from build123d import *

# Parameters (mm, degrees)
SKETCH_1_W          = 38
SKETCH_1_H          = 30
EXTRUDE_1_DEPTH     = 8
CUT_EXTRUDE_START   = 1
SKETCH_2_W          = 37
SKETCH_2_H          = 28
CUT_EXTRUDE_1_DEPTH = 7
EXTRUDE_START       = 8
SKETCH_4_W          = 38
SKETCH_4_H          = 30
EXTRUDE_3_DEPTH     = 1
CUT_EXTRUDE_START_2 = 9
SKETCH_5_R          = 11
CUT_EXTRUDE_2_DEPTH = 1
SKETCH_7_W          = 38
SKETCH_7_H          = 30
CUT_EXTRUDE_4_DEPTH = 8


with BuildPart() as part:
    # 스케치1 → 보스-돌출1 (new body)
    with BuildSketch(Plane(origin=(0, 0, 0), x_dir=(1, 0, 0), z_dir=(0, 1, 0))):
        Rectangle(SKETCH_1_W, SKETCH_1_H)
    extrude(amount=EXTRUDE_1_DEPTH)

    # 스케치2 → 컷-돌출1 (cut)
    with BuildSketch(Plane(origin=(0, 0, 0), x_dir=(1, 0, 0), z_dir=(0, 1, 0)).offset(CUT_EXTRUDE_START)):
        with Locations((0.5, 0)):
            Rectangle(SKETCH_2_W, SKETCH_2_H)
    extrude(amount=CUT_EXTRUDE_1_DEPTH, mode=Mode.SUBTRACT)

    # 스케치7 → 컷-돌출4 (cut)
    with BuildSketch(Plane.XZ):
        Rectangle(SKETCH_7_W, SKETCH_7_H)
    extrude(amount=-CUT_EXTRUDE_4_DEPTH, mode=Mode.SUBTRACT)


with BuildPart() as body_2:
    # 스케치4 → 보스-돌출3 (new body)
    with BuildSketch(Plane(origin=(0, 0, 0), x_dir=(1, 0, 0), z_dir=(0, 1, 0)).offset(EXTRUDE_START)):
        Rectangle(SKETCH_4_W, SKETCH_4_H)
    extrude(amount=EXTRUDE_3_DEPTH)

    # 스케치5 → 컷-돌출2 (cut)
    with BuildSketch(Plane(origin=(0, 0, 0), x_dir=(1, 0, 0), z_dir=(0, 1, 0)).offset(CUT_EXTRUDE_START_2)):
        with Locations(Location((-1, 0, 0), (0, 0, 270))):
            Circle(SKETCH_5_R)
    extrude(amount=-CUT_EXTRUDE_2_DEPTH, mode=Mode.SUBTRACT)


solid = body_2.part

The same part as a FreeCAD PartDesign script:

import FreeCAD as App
import Part
import Sketcher

V = App.Vector
Q = App.Units.Quantity

doc = App.newDocument("Part")
body = doc.addObject("PartDesign::Body", "Body")

sketch1 = body.newObject("Sketcher::SketchObject", "Sketch")
sketch1.AttachmentSupport = (doc.getObject("XZ_Plane"), [""])
sketch1.MapMode = "FlatFace"
sketch1.addGeometry([
    Part.LineSegment(V(-19, -15, 0), V(-19, 15, 0)),
    Part.LineSegment(V(-19, 15, 0), V(19, 15, 0)),
    Part.LineSegment(V(19, 15, 0), V(19, -15, 0)),
    Part.LineSegment(V(19, -15, 0), V(-19, -15, 0)),
], False)
sketch1.addConstraint([
    Sketcher.Constraint("Coincident", 0, 2, 1, 1),
    Sketcher.Constraint("Coincident", 1, 2, 2, 1),
    Sketcher.Constraint("Coincident", 2, 2, 3, 1),
    Sketcher.Constraint("Coincident", 3, 2, 0, 1),
    Sketcher.Constraint("Vertical", 0),
    Sketcher.Constraint("Horizontal", 1),
    Sketcher.Constraint("Vertical", 2),
    Sketcher.Constraint("Horizontal", 3),
    Sketcher.Constraint("Symmetric", 0, 2, 2, 2, -1, 1),
    Sketcher.Constraint("DistanceX", 1, 1, 1, 2, Q("38 mm")),
    Sketcher.Constraint("DistanceY", 0, 1, 0, 2, Q("30 mm")),
])
pad1 = body.newObject("PartDesign::Pad", "Pad")
pad1.Profile = sketch1
pad1.Length = 8
pad1.Reversed = True

sketch2 = body.newObject("Sketcher::SketchObject", "Sketch001")
sketch2.AttachmentSupport = (doc.getObject("XZ_Plane"), [""])
sketch2.MapMode = "FlatFace"
sketch2.AttachmentOffset = App.Placement(V(0, 0, -1), App.Rotation())
sketch2.addGeometry([
    Part.LineSegment(V(-18, -14, 0), V(-18, 14, 0)),
    Part.LineSegment(V(-18, 14, 0), V(19, 14, 0)),
    Part.LineSegment(V(19, 14, 0), V(19, -14, 0)),
    Part.LineSegment(V(19, -14, 0), V(-18, -14, 0)),
], False)
sketch2.addConstraint([
    Sketcher.Constraint("Coincident", 0, 2, 1, 1),
    Sketcher.Constraint("Coincident", 1, 2, 2, 1),
    Sketcher.Constraint("Coincident", 2, 2, 3, 1),
    Sketcher.Constraint("Coincident", 3, 2, 0, 1),
    Sketcher.Constraint("Vertical", 0),
    Sketcher.Constraint("Horizontal", 1),
    Sketcher.Constraint("Vertical", 2),
    Sketcher.Constraint("Horizontal", 3),
    Sketcher.Constraint("DistanceX", 1, 1, 1, 2, Q("37 mm")),
    Sketcher.Constraint("DistanceY", 0, 1, 0, 2, Q("28 mm")),
    Sketcher.Constraint("DistanceX", 0, 2, -1, 1, Q("18 mm")),
    Sketcher.Constraint("DistanceY", -1, 1, 0, 2, Q("14 mm")),
])
pocket1 = body.newObject("PartDesign::Pocket", "Pocket")
pocket1.Profile = sketch2
pocket1.Length = 7

sketch3 = body.newObject("Sketcher::SketchObject", "Sketch002")
sketch3.AttachmentSupport = (doc.getObject("XZ_Plane"), [""])
sketch3.MapMode = "FlatFace"
sketch3.addGeometry([
    Part.LineSegment(V(-19, 15, 0), V(-19, -15, 0)),
    Part.LineSegment(V(-19, -15, 0), V(19, -15, 0)),
    Part.LineSegment(V(19, -15, 0), V(19, 15, 0)),
    Part.LineSegment(V(19, 15, 0), V(-19, 15, 0)),
], False)
sketch3.addConstraint([
    Sketcher.Constraint("Coincident", 0, 2, 1, 1),
    Sketcher.Constraint("Coincident", 1, 2, 2, 1),
    Sketcher.Constraint("Coincident", 2, 2, 3, 1),
    Sketcher.Constraint("Coincident", 3, 2, 0, 1),
    Sketcher.Constraint("Vertical", 0),
    Sketcher.Constraint("Horizontal", 1),
    Sketcher.Constraint("Vertical", 2),
    Sketcher.Constraint("Horizontal", 3),
    Sketcher.Constraint("Symmetric", 0, 2, 2, 2, -1, 1),
    Sketcher.Constraint("DistanceX", 1, 1, 1, 2, Q("38 mm")),
    Sketcher.Constraint("DistanceY", 0, 2, 0, 1, Q("30 mm")),
])
pocket2 = body.newObject("PartDesign::Pocket", "Pocket001")
pocket2.Profile = sketch3
pocket2.Length = 8
body2 = doc.addObject("PartDesign::Body", "Body001")

sketch4 = body2.newObject("Sketcher::SketchObject", "Sketch003")
sketch4.AttachmentSupport = (doc.getObject("XZ_Plane001"), [""])
sketch4.MapMode = "FlatFace"
sketch4.AttachmentOffset = App.Placement(V(0, 0, -8), App.Rotation())
sketch4.addGeometry([
    Part.LineSegment(V(-19, -15, 0), V(-19, 15, 0)),
    Part.LineSegment(V(-19, 15, 0), V(19, 15, 0)),
    Part.LineSegment(V(19, 15, 0), V(19, -15, 0)),
    Part.LineSegment(V(19, -15, 0), V(-19, -15, 0)),
], False)
sketch4.addConstraint([
    Sketcher.Constraint("Coincident", 0, 2, 1, 1),
    Sketcher.Constraint("Coincident", 1, 2, 2, 1),
    Sketcher.Constraint("Coincident", 2, 2, 3, 1),
    Sketcher.Constraint("Coincident", 3, 2, 0, 1),
    Sketcher.Constraint("Vertical", 0),
    Sketcher.Constraint("Horizontal", 1),
    Sketcher.Constraint("Vertical", 2),
    Sketcher.Constraint("Horizontal", 3),
    Sketcher.Constraint("Symmetric", 0, 2, 2, 2, -1, 1),
    Sketcher.Constraint("DistanceX", 1, 1, 1, 2, Q("38 mm")),
    Sketcher.Constraint("DistanceY", 0, 1, 0, 2, Q("30 mm")),
])
pad2 = body2.newObject("PartDesign::Pad", "Pad001")
pad2.Profile = sketch4
pad2.Length = 1
pad2.Reversed = True

sketch5 = body2.newObject("Sketcher::SketchObject", "Sketch004")
sketch5.AttachmentSupport = (doc.getObject("XZ_Plane001"), [""])
sketch5.MapMode = "FlatFace"
sketch5.AttachmentOffset = App.Placement(V(0, 0, -9), App.Rotation())
sketch5.addGeometry(Part.Circle(V(-1, 0, 0), V(0, 0, 1), 11), False)
sketch5.addConstraint([
    Sketcher.Constraint("PointOnObject", 0, 3, -1),
    Sketcher.Constraint("Diameter", 0, Q("22 mm")),
    Sketcher.Constraint("DistanceX", 0, 3, -1, 1, Q("1 mm")),
])
pocket3 = body2.newObject("PartDesign::Pocket", "Pocket002")
pocket3.Profile = sketch5
pocket3.Length = 1
pocket3.Reversed = True

doc.recompute()
